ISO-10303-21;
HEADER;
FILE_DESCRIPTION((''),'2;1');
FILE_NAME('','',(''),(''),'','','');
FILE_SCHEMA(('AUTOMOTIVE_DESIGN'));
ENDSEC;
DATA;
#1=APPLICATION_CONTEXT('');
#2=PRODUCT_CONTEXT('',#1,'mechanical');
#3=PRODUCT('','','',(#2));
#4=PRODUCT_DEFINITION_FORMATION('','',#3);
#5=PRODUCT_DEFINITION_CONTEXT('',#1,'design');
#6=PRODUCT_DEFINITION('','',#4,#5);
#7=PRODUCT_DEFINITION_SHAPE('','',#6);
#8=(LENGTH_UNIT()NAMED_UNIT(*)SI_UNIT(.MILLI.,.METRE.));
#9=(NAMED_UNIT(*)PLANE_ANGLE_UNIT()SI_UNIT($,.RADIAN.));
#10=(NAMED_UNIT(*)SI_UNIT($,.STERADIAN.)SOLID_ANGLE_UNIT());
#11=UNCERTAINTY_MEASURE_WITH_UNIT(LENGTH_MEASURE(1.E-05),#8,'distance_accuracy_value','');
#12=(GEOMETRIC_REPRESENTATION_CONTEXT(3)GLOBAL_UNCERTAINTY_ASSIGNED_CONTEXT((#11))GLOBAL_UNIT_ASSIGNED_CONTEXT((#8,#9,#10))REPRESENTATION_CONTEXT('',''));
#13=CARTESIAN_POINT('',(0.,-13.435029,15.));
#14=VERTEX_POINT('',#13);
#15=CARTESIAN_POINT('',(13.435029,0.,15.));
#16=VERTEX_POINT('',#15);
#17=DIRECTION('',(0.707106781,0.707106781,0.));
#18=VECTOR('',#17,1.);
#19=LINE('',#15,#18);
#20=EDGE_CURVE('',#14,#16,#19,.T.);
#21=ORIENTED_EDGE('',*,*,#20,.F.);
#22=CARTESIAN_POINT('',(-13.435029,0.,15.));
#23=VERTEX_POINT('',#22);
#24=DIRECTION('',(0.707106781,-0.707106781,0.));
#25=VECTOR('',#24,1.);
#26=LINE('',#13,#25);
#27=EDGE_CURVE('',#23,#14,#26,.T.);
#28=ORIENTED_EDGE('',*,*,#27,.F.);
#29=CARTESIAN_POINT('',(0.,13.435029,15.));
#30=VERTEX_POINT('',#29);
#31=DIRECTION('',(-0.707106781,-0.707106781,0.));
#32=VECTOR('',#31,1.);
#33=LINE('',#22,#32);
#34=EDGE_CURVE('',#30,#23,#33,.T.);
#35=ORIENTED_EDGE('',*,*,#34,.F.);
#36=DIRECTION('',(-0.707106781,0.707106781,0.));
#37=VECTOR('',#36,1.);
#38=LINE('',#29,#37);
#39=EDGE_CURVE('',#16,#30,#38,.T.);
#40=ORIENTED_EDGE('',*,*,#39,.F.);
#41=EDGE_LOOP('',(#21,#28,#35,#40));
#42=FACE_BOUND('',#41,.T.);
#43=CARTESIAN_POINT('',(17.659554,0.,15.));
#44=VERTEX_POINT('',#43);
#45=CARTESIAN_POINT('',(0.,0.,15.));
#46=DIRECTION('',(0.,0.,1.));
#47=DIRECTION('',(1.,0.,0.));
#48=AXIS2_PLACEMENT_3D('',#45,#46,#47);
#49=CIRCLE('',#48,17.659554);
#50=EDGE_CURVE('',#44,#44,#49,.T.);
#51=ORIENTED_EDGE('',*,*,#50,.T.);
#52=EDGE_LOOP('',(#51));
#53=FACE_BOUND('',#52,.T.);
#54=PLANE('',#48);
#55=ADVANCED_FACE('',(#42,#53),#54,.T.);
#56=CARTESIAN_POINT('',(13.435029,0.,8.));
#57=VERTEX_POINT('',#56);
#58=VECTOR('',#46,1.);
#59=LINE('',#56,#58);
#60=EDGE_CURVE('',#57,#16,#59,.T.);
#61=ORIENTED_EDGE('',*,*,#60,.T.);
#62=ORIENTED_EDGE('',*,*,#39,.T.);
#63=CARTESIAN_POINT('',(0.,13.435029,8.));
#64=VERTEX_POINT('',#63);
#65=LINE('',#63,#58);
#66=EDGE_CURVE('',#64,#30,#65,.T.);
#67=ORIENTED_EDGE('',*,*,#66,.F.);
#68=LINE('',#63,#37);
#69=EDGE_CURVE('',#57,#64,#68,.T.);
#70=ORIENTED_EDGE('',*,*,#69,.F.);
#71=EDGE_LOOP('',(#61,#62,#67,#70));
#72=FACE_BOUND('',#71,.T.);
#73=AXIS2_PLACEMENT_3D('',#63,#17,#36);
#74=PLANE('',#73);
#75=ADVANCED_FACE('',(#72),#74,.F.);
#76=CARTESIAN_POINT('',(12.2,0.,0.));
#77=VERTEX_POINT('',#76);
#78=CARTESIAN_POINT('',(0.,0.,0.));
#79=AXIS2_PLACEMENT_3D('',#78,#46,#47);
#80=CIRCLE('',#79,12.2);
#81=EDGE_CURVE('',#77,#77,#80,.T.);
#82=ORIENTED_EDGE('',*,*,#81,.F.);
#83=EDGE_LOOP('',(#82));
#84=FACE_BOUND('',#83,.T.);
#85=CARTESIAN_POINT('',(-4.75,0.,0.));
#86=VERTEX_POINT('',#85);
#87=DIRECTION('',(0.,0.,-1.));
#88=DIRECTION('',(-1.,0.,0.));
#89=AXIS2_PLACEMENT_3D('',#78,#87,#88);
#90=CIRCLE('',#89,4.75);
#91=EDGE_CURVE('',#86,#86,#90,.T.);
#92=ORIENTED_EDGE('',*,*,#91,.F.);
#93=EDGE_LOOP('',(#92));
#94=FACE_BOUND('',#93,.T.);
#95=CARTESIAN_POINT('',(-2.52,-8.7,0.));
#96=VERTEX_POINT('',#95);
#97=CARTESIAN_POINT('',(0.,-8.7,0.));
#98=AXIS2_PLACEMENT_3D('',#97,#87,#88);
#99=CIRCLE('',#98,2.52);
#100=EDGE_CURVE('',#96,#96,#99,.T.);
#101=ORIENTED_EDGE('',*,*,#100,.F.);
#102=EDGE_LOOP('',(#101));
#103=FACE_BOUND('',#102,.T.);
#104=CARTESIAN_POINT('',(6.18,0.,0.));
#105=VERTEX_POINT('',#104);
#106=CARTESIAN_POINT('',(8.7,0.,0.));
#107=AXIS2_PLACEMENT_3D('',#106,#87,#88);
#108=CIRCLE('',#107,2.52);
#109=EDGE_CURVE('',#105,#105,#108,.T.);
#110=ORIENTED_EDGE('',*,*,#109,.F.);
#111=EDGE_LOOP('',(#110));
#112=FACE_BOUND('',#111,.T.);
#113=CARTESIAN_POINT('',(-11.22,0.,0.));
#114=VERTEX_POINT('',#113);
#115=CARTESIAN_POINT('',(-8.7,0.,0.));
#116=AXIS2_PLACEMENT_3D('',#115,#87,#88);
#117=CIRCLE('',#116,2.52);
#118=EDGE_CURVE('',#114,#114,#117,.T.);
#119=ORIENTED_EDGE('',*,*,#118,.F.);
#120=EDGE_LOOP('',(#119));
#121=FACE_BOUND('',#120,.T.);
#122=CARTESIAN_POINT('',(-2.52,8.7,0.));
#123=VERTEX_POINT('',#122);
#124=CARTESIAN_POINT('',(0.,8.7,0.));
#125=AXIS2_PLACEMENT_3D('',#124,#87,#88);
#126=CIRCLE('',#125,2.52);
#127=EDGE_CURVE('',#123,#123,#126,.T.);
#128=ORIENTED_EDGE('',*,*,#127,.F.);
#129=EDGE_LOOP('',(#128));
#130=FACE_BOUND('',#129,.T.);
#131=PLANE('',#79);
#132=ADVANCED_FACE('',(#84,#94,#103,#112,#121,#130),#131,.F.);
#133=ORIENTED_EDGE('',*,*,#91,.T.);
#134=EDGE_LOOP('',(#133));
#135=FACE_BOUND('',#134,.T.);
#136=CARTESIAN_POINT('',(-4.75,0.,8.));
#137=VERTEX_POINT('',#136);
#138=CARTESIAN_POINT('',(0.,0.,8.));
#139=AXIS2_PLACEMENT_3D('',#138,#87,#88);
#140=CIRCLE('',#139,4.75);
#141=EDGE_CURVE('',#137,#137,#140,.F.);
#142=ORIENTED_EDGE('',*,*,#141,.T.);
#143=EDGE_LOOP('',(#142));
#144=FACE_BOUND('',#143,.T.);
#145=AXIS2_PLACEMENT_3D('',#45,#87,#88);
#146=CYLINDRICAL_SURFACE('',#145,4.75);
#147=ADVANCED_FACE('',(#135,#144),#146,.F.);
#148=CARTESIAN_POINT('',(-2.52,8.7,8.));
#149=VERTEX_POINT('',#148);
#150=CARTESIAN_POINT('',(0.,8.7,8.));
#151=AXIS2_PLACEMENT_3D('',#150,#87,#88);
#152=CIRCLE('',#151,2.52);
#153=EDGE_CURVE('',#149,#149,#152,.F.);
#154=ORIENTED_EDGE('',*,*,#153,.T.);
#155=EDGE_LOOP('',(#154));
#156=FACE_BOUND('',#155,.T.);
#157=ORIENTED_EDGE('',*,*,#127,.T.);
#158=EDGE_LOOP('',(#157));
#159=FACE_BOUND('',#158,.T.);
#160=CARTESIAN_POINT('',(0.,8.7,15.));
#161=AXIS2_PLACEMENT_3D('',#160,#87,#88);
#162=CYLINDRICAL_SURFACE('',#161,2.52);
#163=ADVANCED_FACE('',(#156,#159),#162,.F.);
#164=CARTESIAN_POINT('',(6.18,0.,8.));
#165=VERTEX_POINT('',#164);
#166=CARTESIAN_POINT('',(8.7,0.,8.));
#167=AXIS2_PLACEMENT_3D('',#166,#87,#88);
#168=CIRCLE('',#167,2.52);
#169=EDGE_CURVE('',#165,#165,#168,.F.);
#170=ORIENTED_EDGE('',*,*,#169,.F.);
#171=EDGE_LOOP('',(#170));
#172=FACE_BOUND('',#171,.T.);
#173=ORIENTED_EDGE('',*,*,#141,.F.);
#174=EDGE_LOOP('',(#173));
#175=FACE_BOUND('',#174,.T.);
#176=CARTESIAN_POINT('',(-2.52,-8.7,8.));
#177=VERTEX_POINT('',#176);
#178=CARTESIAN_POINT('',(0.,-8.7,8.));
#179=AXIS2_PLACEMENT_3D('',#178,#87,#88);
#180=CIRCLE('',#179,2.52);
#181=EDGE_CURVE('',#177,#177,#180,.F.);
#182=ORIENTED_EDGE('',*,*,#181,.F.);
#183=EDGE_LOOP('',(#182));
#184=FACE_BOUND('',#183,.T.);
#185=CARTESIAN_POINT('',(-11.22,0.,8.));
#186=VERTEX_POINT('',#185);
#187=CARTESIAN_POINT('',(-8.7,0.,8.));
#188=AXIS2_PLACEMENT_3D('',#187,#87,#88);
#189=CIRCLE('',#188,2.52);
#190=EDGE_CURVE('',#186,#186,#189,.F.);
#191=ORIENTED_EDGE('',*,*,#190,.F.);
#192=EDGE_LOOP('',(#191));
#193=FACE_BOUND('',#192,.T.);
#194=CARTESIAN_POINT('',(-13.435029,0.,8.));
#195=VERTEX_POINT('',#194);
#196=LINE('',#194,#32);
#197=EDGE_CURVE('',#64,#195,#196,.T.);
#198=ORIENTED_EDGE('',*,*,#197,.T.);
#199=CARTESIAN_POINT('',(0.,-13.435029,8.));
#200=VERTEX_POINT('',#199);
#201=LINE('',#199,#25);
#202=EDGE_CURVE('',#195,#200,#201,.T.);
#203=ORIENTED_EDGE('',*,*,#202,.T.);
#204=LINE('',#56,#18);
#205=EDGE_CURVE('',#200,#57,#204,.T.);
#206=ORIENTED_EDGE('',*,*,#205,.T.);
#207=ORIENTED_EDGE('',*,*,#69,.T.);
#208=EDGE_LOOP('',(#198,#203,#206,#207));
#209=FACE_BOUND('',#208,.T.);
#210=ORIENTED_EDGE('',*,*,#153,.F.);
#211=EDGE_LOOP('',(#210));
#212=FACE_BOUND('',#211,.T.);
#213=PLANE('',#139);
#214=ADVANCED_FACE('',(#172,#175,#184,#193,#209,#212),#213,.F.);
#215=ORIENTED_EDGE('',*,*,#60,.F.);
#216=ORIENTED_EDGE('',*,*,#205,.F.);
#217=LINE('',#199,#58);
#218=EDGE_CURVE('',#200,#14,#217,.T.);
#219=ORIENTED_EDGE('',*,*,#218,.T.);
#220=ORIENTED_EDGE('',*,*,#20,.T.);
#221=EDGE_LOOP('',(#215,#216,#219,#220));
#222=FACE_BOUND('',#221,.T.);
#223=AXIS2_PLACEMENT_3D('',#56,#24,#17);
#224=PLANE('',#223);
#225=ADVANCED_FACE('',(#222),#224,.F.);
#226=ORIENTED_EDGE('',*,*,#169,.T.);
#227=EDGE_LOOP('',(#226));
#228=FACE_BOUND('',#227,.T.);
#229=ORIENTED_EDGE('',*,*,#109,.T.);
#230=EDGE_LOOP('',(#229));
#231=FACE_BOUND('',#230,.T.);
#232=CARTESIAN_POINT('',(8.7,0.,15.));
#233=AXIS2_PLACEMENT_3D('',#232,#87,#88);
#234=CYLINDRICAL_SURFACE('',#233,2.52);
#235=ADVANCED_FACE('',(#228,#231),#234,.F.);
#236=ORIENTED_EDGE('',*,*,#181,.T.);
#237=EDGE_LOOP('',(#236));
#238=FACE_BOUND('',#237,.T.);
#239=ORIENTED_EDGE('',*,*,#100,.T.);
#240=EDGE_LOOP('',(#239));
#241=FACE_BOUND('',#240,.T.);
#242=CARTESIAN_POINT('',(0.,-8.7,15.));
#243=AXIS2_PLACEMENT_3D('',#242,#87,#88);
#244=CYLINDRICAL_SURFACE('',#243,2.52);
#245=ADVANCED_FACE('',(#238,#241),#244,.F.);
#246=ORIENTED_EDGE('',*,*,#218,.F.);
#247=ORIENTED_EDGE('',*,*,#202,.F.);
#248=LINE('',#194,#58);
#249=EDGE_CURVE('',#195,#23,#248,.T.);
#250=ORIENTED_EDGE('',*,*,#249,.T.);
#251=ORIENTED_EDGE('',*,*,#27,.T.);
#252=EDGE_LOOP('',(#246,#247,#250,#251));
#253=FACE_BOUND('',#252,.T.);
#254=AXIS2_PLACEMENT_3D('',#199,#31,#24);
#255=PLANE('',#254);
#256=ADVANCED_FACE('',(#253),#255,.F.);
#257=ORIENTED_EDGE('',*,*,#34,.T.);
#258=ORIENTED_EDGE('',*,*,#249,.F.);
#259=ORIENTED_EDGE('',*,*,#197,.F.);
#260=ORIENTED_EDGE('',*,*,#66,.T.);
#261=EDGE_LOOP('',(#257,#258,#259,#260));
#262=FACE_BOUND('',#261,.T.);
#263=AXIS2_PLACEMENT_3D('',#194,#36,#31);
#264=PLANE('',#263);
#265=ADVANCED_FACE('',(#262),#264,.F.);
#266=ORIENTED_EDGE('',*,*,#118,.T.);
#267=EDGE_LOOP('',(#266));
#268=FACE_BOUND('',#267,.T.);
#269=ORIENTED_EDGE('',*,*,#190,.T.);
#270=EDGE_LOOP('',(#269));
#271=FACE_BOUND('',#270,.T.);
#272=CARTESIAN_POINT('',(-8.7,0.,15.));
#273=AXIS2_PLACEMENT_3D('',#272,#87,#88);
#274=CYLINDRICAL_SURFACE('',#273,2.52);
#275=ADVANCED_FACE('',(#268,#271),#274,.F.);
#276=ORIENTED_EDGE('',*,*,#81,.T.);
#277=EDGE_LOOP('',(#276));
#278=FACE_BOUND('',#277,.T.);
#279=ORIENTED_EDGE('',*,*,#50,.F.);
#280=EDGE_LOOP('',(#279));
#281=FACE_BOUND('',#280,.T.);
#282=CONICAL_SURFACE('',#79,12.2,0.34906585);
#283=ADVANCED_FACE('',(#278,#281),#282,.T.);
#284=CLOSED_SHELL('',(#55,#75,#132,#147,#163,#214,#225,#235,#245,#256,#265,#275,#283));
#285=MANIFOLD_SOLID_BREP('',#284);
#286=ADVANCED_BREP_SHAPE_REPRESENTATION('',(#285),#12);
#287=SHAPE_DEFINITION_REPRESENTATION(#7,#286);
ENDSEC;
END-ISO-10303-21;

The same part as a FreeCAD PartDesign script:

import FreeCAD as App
import Part
import Sketcher


def add_polygon(sketch, points):
    """Adds a closed chain of lines whose ends are joined by coincident constraints."""
    first, n = sketch.GeometryCount, len(points)
    for a, b in zip(points, points[1:] + points[:1]):
        sketch.addGeometry(Part.LineSegment(App.Vector(*a, 0), App.Vector(*b, 0)), False)
    for i in range(n):
        sketch.addConstraint(Sketcher.Constraint("Coincident", first + i, 2, first + (i + 1) % n, 1))

doc = App.newDocument("Part")
params = doc.addObject("Spreadsheet::Sheet", "Params")
for row, (alias, value) in enumerate([
    ("sketch1_diameter", "24.4 mm"),
    ("pad1_length", "15 mm"),
    ("pad1_taper", "20 deg"),
    ("sketch2_diameter", "9.5 mm"),
    ("sketch3_diameter", "5.04 mm"),
    ("sketch4_length", "19 mm"),
    ("pocket3_length", "7 mm"),
], start=1):
    params.set(f"A{row}", alias)
    params.set(f"B{row}", "=" + value)
    params.setAlias(f"B{row}", alias)

body = doc.addObject("PartDesign::Body", "Body")

sketch1 = doc.addObject("Sketcher::SketchObject", "Sketch")
body.addObject(sketch1)
sketch1.AttachmentSupport = (doc.XY_Plane, [""])
sketch1.MapMode = "FlatFace"
sketch1.addGeometry(Part.Circle(App.Vector(0, 0, 0), App.Vector(0, 0, 1), 12.2), False)
sketch1.addConstraint([
    Sketcher.Constraint("Coincident", 0, 3, -1, 1),
    Sketcher.Constraint("Diameter", 0, 24.4),
])
sketch1.setExpression("Constraints[1]", "Params.sketch1_diameter")
pad1 = doc.addObject("PartDesign::Pad", "Pad")
body.addObject(pad1)
pad1.Profile = sketch1
pad1.setExpression("Length", "Params.pad1_length")
pad1.setExpression("TaperAngle", "Params.pad1_taper")

sketch2 = doc.addObject("Sketcher::SketchObject", "Sketch001")
body.addObject(sketch2)
sketch2.AttachmentSupport = (doc.XY_Plane, [""])
sketch2.MapMode = "FlatFace"
sketch2.addGeometry(Part.Circle(App.Vector(0, 0, 0), App.Vector(0, 0, 1), 4.75), False)
sketch2.addConstraint([
    Sketcher.Constraint("Coincident", 0, 3, -1, 1),
    Sketcher.Constraint("Diameter", 0, 9.5),
])
sketch2.setExpression("Constraints[1]", "Params.sketch2_diameter")
pocket1 = doc.addObject("PartDesign::Pocket", "Pocket")
body.addObject(pocket1)
pocket1.Profile = sketch2
pocket1.Type = "ThroughAll"
pocket1.Reversed = True

sketch3 = doc.addObject("Sketcher::SketchObject", "Sketch002")
body.addObject(sketch3)
sketch3.AttachmentSupport = (doc.XY_Plane, [""])
sketch3.MapMode = "FlatFace"
sketch3.addGeometry([
    Part.Circle(App.Vector(0, 8.7, 0), App.Vector(0, 0, 1), 2.52),
    Part.Circle(App.Vector(-8.7, 0, 0), App.Vector(0, 0, 1), 2.52),
    Part.Circle(App.Vector(0, -8.7, 0), App.Vector(0, 0, 1), 2.52),
    Part.Circle(App.Vector(8.7, 0, 0), App.Vector(0, 0, 1), 2.52),
], False)
sketch3.addConstraint([
    Sketcher.Constraint("Equal", 0, 1),
    Sketcher.Constraint("Equal", 1, 2),
    Sketcher.Constraint("Equal", 2, 3),
    Sketcher.Constraint("Symmetric", 0, 3, 2, 3, -1, 1),
    Sketcher.Constraint("Symmetric", 1, 3, 3, 3, -1, 1),
    Sketcher.Constraint("PointOnObject", 0, 3, -2),
    Sketcher.Constraint("PointOnObject", 1, 3, -1),
    Sketcher.Constraint("Diameter", 0, 5.04),
    Sketcher.Constraint("DistanceY", -1, 1, 0, 3, 8.7),
    Sketcher.Constraint("DistanceX", 1, 3, -1, 1, 8.7),
])
sketch3.setExpression("Constraints[7]", "Params.sketch3_diameter")
pocket2 = doc.addObject("PartDesign::Pocket", "Pocket001")
body.addObject(pocket2)
pocket2.Profile = sketch3
pocket2.Type = "ThroughAll"
pocket2.Reversed = True

sketch4 = doc.addObject("Sketcher::SketchObject", "Sketch003")
body.addObject(sketch4)
sketch4.AttachmentSupport = (doc.XY_Plane, [""])
sketch4.MapMode = "FlatFace"
sketch4.AttachmentOffset = App.Placement(App.Vector(0, 0, 15), App.Rotation())
add_polygon(sketch4, [(13.435029, 0), (0, 13.435029), (-13.435029, 0), (0, -13.435029)])
sketch4.addConstraint([
    Sketcher.Constraint("Symmetric", 0, 2, 2, 2, -1, 1),
    Sketcher.Constraint("Symmetric", 1, 2, 3, 2, -1, 1),
    Sketcher.Constraint("PointOnObject", 0, 2, -2),
    Sketcher.Constraint("PointOnObject", 1, 2, -1),
    Sketcher.Constraint("Perpendicular", 0, 1),
    Sketcher.Constraint("Distance", 0, 19.0),
])
sketch4.setExpression("Constraints[9]", "Params.sketch4_length")
pocket3 = doc.addObject("PartDesign::Pocket", "Pocket002")
body.addObject(pocket3)
pocket3.Profile = sketch4
pocket3.setExpression("Length", "Params.pocket3_length")

doc.recompute()
